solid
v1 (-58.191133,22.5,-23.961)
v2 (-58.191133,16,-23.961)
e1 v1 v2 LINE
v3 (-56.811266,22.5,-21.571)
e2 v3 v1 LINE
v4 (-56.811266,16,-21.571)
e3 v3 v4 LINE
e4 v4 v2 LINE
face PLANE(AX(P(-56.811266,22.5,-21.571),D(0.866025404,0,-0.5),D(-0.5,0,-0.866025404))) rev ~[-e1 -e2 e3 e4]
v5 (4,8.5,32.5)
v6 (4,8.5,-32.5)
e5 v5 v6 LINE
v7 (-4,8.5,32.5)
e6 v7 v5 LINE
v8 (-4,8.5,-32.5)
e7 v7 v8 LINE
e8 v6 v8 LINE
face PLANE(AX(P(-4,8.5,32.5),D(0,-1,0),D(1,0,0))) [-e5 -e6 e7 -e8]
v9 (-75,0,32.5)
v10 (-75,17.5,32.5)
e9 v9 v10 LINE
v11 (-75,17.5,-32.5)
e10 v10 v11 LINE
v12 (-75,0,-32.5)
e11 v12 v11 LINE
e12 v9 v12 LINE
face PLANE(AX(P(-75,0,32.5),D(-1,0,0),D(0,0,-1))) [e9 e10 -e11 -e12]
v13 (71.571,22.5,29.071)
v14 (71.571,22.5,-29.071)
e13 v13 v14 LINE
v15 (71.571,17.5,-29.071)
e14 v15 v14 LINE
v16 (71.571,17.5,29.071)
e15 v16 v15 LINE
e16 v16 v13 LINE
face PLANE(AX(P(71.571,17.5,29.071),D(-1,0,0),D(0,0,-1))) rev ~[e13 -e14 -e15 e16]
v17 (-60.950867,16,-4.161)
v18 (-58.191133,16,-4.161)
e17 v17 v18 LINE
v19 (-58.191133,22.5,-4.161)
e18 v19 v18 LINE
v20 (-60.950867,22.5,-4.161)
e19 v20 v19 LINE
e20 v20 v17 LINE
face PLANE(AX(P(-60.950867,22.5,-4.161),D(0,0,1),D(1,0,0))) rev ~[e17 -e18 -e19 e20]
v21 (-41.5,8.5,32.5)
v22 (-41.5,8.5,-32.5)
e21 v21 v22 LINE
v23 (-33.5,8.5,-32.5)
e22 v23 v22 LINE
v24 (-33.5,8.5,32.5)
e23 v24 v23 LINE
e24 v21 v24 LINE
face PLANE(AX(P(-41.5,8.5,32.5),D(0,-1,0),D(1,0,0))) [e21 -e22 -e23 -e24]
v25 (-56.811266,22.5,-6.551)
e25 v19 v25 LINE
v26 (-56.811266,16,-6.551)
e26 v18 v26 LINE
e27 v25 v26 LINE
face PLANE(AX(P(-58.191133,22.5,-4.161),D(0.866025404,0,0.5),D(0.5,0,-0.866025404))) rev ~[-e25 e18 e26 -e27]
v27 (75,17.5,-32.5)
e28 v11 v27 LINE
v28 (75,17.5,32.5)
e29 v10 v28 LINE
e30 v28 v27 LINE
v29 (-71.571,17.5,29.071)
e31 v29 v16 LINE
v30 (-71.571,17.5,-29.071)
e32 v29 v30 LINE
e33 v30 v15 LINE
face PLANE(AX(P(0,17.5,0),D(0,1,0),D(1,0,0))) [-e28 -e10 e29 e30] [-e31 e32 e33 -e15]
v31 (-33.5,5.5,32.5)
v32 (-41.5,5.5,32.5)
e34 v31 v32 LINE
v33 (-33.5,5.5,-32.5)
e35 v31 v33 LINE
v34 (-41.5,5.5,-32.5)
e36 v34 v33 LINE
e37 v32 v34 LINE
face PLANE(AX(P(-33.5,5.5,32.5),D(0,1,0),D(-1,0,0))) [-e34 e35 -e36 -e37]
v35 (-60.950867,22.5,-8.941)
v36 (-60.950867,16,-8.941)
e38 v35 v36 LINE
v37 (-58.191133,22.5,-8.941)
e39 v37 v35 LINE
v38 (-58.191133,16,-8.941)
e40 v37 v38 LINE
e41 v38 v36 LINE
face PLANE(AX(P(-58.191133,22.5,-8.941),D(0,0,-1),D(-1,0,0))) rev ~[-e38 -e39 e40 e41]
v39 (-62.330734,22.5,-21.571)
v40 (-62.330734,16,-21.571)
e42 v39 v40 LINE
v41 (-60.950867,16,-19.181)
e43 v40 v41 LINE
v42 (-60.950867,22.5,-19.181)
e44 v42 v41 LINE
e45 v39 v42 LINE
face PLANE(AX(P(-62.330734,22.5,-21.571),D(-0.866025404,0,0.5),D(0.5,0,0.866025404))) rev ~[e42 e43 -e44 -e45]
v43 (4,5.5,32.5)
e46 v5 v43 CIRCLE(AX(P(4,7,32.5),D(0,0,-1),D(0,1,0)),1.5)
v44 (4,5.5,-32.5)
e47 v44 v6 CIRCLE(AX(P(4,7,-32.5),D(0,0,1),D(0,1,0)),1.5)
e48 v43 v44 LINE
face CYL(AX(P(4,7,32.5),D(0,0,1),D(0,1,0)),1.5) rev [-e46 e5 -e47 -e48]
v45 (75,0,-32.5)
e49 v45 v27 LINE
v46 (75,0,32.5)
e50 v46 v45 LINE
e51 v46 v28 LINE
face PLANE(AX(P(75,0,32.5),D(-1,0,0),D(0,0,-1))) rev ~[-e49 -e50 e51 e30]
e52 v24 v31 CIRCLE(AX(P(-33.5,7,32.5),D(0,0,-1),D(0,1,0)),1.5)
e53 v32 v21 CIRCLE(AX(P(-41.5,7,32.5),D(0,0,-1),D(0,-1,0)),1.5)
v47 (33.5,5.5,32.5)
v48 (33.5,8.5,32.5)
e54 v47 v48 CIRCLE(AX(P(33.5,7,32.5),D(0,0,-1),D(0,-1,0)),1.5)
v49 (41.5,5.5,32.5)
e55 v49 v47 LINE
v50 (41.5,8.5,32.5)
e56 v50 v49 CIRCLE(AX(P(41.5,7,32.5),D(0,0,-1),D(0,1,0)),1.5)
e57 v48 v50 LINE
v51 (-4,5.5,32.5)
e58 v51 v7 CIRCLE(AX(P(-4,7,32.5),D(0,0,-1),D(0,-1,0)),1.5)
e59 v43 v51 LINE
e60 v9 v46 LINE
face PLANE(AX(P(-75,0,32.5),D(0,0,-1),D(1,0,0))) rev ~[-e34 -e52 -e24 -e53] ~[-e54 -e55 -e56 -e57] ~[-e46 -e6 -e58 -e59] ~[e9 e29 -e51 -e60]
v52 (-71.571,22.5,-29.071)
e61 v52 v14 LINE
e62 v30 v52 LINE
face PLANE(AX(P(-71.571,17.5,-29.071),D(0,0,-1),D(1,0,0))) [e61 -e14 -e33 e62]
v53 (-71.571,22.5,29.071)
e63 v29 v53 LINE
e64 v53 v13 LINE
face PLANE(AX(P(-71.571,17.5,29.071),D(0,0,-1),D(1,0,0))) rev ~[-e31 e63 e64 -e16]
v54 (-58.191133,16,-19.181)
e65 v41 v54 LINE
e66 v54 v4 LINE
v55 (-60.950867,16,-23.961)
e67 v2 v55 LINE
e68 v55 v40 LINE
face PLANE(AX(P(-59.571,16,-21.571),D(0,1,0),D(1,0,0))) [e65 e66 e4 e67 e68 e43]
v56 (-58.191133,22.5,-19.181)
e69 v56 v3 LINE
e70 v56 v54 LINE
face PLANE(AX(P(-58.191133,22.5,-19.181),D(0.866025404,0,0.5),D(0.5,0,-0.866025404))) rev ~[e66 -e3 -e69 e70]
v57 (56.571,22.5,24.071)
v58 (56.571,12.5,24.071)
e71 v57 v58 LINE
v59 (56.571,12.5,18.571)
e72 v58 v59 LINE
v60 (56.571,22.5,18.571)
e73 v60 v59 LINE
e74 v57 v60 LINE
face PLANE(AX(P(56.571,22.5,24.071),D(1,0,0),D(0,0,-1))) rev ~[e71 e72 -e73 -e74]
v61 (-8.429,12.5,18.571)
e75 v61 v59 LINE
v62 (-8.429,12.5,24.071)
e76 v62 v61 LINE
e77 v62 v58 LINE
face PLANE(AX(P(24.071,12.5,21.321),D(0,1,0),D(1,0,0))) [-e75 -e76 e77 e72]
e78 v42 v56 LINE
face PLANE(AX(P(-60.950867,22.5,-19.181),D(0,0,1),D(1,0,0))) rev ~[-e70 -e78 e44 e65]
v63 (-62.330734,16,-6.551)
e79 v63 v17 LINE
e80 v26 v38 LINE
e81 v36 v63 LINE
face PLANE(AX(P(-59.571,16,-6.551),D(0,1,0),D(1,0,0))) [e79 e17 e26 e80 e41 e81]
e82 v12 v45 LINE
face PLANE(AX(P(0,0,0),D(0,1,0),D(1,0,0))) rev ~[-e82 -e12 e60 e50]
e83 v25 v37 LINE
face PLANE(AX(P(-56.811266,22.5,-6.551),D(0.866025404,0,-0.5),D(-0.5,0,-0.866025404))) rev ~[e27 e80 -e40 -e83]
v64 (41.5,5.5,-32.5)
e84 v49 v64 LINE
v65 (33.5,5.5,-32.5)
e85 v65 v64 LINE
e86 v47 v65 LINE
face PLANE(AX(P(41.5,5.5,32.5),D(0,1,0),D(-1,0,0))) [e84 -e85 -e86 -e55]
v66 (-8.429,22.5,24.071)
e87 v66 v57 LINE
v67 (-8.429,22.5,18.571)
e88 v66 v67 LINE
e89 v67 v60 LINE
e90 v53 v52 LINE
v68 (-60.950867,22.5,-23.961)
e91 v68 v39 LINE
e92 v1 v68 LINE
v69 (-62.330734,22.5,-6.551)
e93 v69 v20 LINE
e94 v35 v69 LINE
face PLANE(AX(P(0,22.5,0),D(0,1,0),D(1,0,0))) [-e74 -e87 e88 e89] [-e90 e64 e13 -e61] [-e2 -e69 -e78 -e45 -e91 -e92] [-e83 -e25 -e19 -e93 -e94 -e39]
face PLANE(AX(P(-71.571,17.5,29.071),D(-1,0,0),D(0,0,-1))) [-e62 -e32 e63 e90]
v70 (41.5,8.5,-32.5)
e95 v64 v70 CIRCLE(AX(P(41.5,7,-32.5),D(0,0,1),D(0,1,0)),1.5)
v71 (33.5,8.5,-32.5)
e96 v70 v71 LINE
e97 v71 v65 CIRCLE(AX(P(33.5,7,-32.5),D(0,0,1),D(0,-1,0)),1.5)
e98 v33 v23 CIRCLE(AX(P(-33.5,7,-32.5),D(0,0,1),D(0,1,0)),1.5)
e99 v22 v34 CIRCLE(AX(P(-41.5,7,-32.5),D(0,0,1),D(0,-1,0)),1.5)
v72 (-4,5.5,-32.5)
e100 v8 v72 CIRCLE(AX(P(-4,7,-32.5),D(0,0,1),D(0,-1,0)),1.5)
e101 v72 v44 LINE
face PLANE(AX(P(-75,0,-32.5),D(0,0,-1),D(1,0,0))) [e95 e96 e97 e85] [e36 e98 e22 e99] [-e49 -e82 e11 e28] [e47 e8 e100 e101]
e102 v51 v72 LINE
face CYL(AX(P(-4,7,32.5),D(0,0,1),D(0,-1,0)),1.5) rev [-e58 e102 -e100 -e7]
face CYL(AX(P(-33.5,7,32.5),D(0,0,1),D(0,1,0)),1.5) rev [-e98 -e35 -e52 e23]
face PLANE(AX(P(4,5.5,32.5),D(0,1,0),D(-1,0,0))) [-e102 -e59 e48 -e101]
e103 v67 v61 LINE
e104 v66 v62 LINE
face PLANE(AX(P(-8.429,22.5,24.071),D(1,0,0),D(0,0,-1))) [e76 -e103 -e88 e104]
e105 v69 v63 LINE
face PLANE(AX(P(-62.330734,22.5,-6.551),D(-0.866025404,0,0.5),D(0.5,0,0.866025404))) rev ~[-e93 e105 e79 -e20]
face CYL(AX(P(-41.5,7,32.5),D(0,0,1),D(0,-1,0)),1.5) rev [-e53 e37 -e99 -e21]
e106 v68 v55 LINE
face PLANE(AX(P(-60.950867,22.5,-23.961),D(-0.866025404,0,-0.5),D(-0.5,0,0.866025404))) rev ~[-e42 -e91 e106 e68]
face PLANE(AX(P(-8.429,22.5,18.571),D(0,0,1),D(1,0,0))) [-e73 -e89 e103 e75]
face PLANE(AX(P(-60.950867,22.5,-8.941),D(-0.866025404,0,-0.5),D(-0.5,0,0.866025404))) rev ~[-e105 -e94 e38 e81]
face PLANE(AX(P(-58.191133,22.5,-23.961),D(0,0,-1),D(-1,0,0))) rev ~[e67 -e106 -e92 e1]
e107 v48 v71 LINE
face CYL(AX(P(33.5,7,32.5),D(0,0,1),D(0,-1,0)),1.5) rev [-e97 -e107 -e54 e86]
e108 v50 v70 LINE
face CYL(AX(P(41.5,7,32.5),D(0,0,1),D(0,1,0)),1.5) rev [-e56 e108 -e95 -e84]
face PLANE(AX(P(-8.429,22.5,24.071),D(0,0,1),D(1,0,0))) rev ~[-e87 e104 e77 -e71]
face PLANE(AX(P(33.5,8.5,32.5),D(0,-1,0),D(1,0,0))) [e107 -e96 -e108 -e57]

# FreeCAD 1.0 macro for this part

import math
import FreeCAD as App
import Part
import Sketcher
from FreeCAD import Vector
Q = App.Units.Quantity

doc = App.newDocument("Part")
params = doc.addObject("Spreadsheet::Sheet", "Params")
for row, (alias, value) in enumerate([
    ("sketch1_width", "150 mm"),
    ("sketch1_height", "65 mm"),
    ("pad1_length", "17.5 mm"),
    ("sketch2_radius", "1.5 mm"),
    ("sketch2_width", "8 mm"),
    ("pad2_length", "5 mm"),
    ("pocket2_length", "6.5 mm"),
    ("sketch5_width", "65 mm"),
    ("sketch5_height", "5.5 mm"),
    ("pocket3_length", "10 mm"),
], start=1):
    params.set(f"A{row}", alias)
    params.set(f"B{row}", "=" + value)
    params.setAlias(f"B{row}", alias)

body = doc.addObject("PartDesign::Body", "Body")

sketch1 = body.newObject("Sketcher::SketchObject", "Sketch")
sketch1.AttachmentSupport = (doc.getObject("XZ_Plane"), [""])
sketch1.MapMode = "FlatFace"
sketch1.addGeometry(Part.LineSegment(Vector(-75, -32, 0), Vector(-75, 32, 0)), False)
sketch1.addGeometry(Part.LineSegment(Vector(-75, 32, 0), Vector(75, 32, 0)), False)
sketch1.addGeometry(Part.LineSegment(Vector(75, 32, 0), Vector(75, -32, 0)), False)
sketch1.addGeometry(Part.LineSegment(Vector(75, -32, 0), Vector(-75, -32, 0)), False)
sketch1.addConstraint(Sketcher.Constraint("Coincident", 0, 2, 1, 1))
sketch1.addConstraint(Sketcher.Constraint("Coincident", 1, 2, 2, 1))
sketch1.addConstraint(Sketcher.Constraint("Coincident", 2, 2, 3, 1))
sketch1.addConstraint(Sketcher.Constraint("Coincident", 3, 2, 0, 1))
sketch1.addConstraint(Sketcher.Constraint("Vertical", 0))
sketch1.addConstraint(Sketcher.Constraint("Horizontal", 1))
sketch1.addConstraint(Sketcher.Constraint("Vertical", 2))
sketch1.addConstraint(Sketcher.Constraint("Horizontal", 3))
sketch1.addConstraint(Sketcher.Constraint("Symmetric", 0, 2, 2, 2, -1, 1))
sketch1.addConstraint(Sketcher.Constraint("DistanceX", 1, 1, 1, 2, Q("150 mm")))
sketch1.addConstraint(Sketcher.Constraint("DistanceY", 0, 1, 0, 2, Q("65 mm")))
sketch1.setExpression("Constraints[9]", "Params.sketch1_width")
sketch1.setExpression("Constraints[10]", "Params.sketch1_height")
pad1 = body.newObject("PartDesign::Pad", "Pad")
pad1.Profile = sketch1
pad1.setExpression("Length", "Params.pad1_length")
pad1.Reversed = True

sketch2 = body.newObject("Sketcher::SketchObject", "Sketch001")
sketch2.AttachmentSupport = (doc.getObject("XY_Plane"), [""])
sketch2.MapMode = "FlatFace"
sketch2.AttachmentOffset = App.Placement(Vector(0, 0, 32.5), App.Rotation())
sketch2.addGeometry(Part.LineSegment(Vector(4, 8.5, 0), Vector(-4, 8.5, 0)), False)
sketch2.addGeometry(Part.ArcOfCircle(Part.Circle(Vector(-4, 7, 0), Vector(0, 0, 1), 1.5), math.radians(90), math.radians(270)), False)
sketch2.addGeometry(Part.LineSegment(Vector(-4, 5.5, 0), Vector(4, 5.5, 0)), False)
sketch2.addGeometry(Part.ArcOfCircle(Part.Circle(Vector(4, 7, 0), Vector(0, 0, 1), 1.5), math.radians(-90), math.radians(90)), False)
sketch2.addGeometry(Part.LineSegment(Vector(-33.5, 8.5, 0), Vector(-41.5, 8.5, 0)), False)
sketch2.addGeometry(Part.ArcOfCircle(Part.Circle(Vector(-41.5, 7, 0), Vector(0, 0, 1), 1.5), math.radians(90), math.radians(270)), False)
sketch2.addGeometry(Part.LineSegment(Vector(-41.5, 5.5, 0), Vector(-33.5, 5.5, 0)), False)
sketch2.addGeometry(Part.ArcOfCircle(Part.Circle(Vector(-33.5, 7, 0), Vector(0, 0, 1), 1.5), math.radians(-90), math.radians(90)), False)
sketch2.addGeometry(Part.LineSegment(Vector(41.5, 8.5, 0), Vector(33.5, 8.5, 0)), False)
sketch2.addGeometry(Part.ArcOfCircle(Part.Circle(Vector(33.5, 7, 0), Vector(0, 0, 1), 1.5), math.radians(90), math.radians(270)), False)
sketch2.addGeometry(Part.LineSegment(Vector(33.5, 5.5, 0), Vector(41.5, 5.5, 0)), False)
sketch2.addGeometry(Part.ArcOfCircle(Part.Circle(Vector(41.5, 7, 0), Vector(0, 0, 1), 1.5), math.radians(-90), math.radians(90)), False)
sketch2.addConstraint(Sketcher.Constraint("Tangent", 0, 2, 1, 1))
sketch2.addConstraint(Sketcher.Constraint("Tangent", 1, 2, 2, 1))
sketch2.addConstraint(Sketcher.Constraint("Tangent", 2, 2, 3, 1))
sketch2.addConstraint(Sketcher.Constraint("Tangent", 3, 2, 0, 1))
sketch2.addConstraint(Sketcher.Constraint("Tangent", 4, 2, 5, 1))
sketch2.addConstraint(Sketcher.Constraint("Tangent", 5, 2, 6, 1))
sketch2.addConstraint(Sketcher.Constraint("Tangent", 6, 2, 7, 1))
sketch2.addConstraint(Sketcher.Constraint("Tangent", 7, 2, 4, 1))
sketch2.addConstraint(Sketcher.Constraint("Tangent", 8, 2, 9, 1))
sketch2.addConstraint(Sketcher.Constraint("Tangent", 9, 2, 10, 1))
sketch2.addConstraint(Sketcher.Constraint("Tangent", 10, 2, 11, 1))
sketch2.addConstraint(Sketcher.Constraint("Tangent", 11, 2, 8, 1))
sketch2.addConstraint(Sketcher.Constraint("Horizontal", 0))
sketch2.addConstraint(Sketcher.Constraint("Horizontal", 2))
sketch2.addConstraint(Sketcher.Constraint("Horizontal", 4))
sketch2.addConstraint(Sketcher.Constraint("Horizontal", 6))
sketch2.addConstraint(Sketcher.Constraint("Horizontal", 8))
sketch2.addConstraint(Sketcher.Constraint("Horizontal", 10))
sketch2.addConstraint(Sketcher.Constraint("Equal", 3, 5))
sketch2.addConstraint(Sketcher.Constraint("Equal", 7, 9))
sketch2.addConstraint(Sketcher.Constraint("Symmetric", 7, 3, 9, 3, -2))
sketch2.addConstraint(Sketcher.Constraint("Horizontal", 3, 3, 5, 3))
sketch2.addConstraint(Sketcher.Constraint("Equal", 2, 4))
sketch2.addConstraint(Sketcher.Constraint("Equal", 6, 8))
sketch2.addConstraint(Sketcher.Constraint("Radius", 1, Q("1.5 mm")))
sketch2.addConstraint(Sketcher.Constraint("DistanceX", 0, 2, 0, 1, Q("8 mm")))
sketch2.addConstraint(Sketcher.Constraint("DistanceX", 1, 3, -1, 1, Q("4 mm")))
sketch2.addConstraint(Sketcher.Constraint("DistanceY", -1, 1, 1, 3, Q("7 mm")))
sketch2.addConstraint(Sketcher.Constraint("DistanceX", 7, 3, 9, 3, Q("67 mm")))
sketch2.setExpression("Constraints[24]", "Params.sketch2_radius")
sketch2.setExpression("Constraints[25]", "Params.sketch2_width")
pocket1 = body.newObject("PartDesign::Pocket", "Pocket")
pocket1.Profile = sketch2
pocket1.Type = "ThroughAll"

sketch3 = body.newObject("Sketcher::SketchObject", "Sketch002")
sketch3.AttachmentSupport = (doc.getObject("XZ_Plane"), [""])
sketch3.MapMode = "FlatFace"
sketch3.AttachmentOffset = App.Placement(Vector(0, 0, -17.5), App.Rotation())
sketch3.addGeometry(Part.LineSegment(Vector(-72, -29, 0), Vector(-72, 29, 0)), False)
sketch3.addGeometry(Part.LineSegment(Vector(-72, 29, 0), Vector(72, 29, 0)), False)
sketch3.addGeometry(Part.LineSegment(Vector(72, 29, 0), Vector(72, -29, 0)), False)
sketch3.addGeometry(Part.LineSegment(Vector(72, -29, 0), Vector(-72, -29, 0)), False)
sketch3.addConstraint(Sketcher.Constraint("Coincident", 0, 2, 1, 1))
sketch3.addConstraint(Sketcher.Constraint("Coincident", 1, 2, 2, 1))
sketch3.addConstraint(Sketcher.Constraint("Coincident", 2, 2, 3, 1))
sketch3.addConstraint(Sketcher.Constraint("Coincident", 3, 2, 0, 1))
sketch3.addConstraint(Sketcher.Constraint("Vertical", 0))
sketch3.addConstraint(Sketcher.Constraint("Horizontal", 1))
sketch3.addConstraint(Sketcher.Constraint("Vertical", 2))
sketch3.addConstraint(Sketcher.Constraint("Horizontal", 3))
sketch3.addConstraint(Sketcher.Constraint("Symmetric", 0, 2, 2, 2, -1, 1))
sketch3.addConstraint(Sketcher.Constraint("DistanceX", 1, 1, 1, 2, Q("143.142 mm")))
sketch3.addConstraint(Sketcher.Constraint("DistanceY", 0, 1, 0, 2, Q("58.142 mm")))
pad2 = body.newObject("PartDesign::Pad", "Pad001")
pad2.Profile = sketch3
pad2.setExpression("Length", "Params.pad2_length")
pad2.Reversed = True

sketch4 = body.newObject("Sketcher::SketchObject", "Sketch003")
sketch4.AttachmentSupport = (doc.getObject("XZ_Plane"), [""])
sketch4.MapMode = "FlatFace"
sketch4.AttachmentOffset = App.Placement(Vector(0, 0, -22.5), App.Rotation())
sketch4.addGeometry(Part.LineSegment(Vector(-61, -24, 0), Vector(-62.3, -21.6, 0)), False)
sketch4.addGeometry(Part.LineSegment(Vector(-62.3, -21.6, 0), Vector(-61, -19.2, 0)), False)
sketch4.addGeometry(Part.LineSegment(Vector(-61, -19.2, 0), Vector(-58.2, -19.2, 0)), False)
sketch4.addGeometry(Part.LineSegment(Vector(-58.2, -19.2, 0), Vector(-56.8, -21.6, 0)), False)
sketch4.addGeometry(Part.LineSegment(Vector(-56.8, -21.6, 0), Vector(-58.2, -24, 0)), False)
sketch4.addGeometry(Part.LineSegment(Vector(-58.2, -24, 0), Vector(-61, -24, 0)), False)
sketch4.addGeometry(Part.LineSegment(Vector(-61, -8.9, 0), Vector(-62.3, -6.6, 0)), False)
sketch4.addGeometry(Part.LineSegment(Vector(-62.3, -6.6, 0), Vector(-61, -4.2, 0)), False)
sketch4.addGeometry(Part.LineSegment(Vector(-61, -4.2, 0), Vector(-58.2, -4.2, 0)), False)
sketch4.addGeometry(Part.LineSegment(Vector(-58.2, -4.2, 0), Vector(-56.8, -6.6, 0)), False)
sketch4.addGeometry(Part.LineSegment(Vector(-56.8, -6.6, 0), Vector(-58.2, -8.9, 0)), False)
sketch4.addGeometry(Part.LineSegment(Vector(-58.2, -8.9, 0), Vector(-61, -8.9, 0)), False)
sketch4.addConstraint(Sketcher.Constraint("Coincident", 0, 2, 1, 1))
sketch4.addConstraint(Sketcher.Constraint("Coincident", 1, 2, 2, 1))
sketch4.addConstraint(Sketcher.Constraint("Coincident", 2, 2, 3, 1))
sketch4.addConstraint(Sketcher.Constraint("Coincident", 3, 2, 4, 1))
sketch4.addConstraint(Sketcher.Constraint("Coincident", 4, 2, 5, 1))
sketch4.addConstraint(Sketcher.Constraint("Coincident", 5, 2, 0, 1))
sketch4.addConstraint(Sketcher.Constraint("Coincident", 6, 2, 7, 1))
sketch4.addConstraint(Sketcher.Constraint("Coincident", 7, 2, 8, 1))
sketch4.addConstraint(Sketcher.Constraint("Coincident", 8, 2, 9, 1))
sketch4.addConstraint(Sketcher.Constraint("Coincident", 9, 2, 10, 1))
sketch4.addConstraint(Sketcher.Constraint("Coincident", 10, 2, 11, 1))
sketch4.addConstraint(Sketcher.Constraint("Coincident", 11, 2, 6, 1))
sketch4.addConstraint(Sketcher.Constraint("Horizontal", 2))
sketch4.addConstraint(Sketcher.Constraint("Horizontal", 5))
sketch4.addConstraint(Sketcher.Constraint("Horizontal", 8))
sketch4.addConstraint(Sketcher.Constraint("Horizontal", 11))
sketch4.addConstraint(Sketcher.Constraint("Parallel", 0, 3))
sketch4.addConstraint(Sketcher.Constraint("Parallel", 1, 4))
sketch4.addConstraint(Sketcher.Constraint("Parallel", 3, 6))
sketch4.addConstraint(Sketcher.Constraint("Parallel", 4, 7))
sketch4.addConstraint(Sketcher.Constraint("Parallel", 6, 9))
sketch4.addConstraint(Sketcher.Constraint("Parallel", 7, 10))
sketch4.addConstraint(Sketcher.Constraint("Horizontal", 0, 2, 3, 2))
sketch4.addConstraint(Sketcher.Constraint("Horizontal", 6, 2, 9, 2))
sketch4.addConstraint(Sketcher.Constraint("Vertical", 2, 2, 4, 2))
sketch4.addConstraint(Sketcher.Constraint("Vertical", 1, 2, 5, 2))
sketch4.addConstraint(Sketcher.Constraint("Vertical", 0, 2, 6, 2))
sketch4.addConstraint(Sketcher.Constraint("Vertical", 5, 2, 7, 2))
sketch4.addConstraint(Sketcher.Constraint("Vertical", 4, 2, 8, 2))
sketch4.addConstraint(Sketcher.Constraint("Vertical", 8, 2, 10, 2))
sketch4.addConstraint(Sketcher.Constraint("Angle", 0, Q("120 deg")))
sketch4.addConstraint(Sketcher.Constraint("DistanceY", 0, 2, 1, 2, Q("2.39 mm")))
sketch4.addConstraint(Sketcher.Constraint("DistanceY", 1, 2, 6, 2, Q("12.63 mm")))
sketch4.addConstraint(Sketcher.Constraint("DistanceY", 0, 2, -1, 1, Q("21.571 mm")))
sketch4.addConstraint(Sketcher.Constraint("DistanceX", 0, 2, 2, 2, Q("4.139601 mm")))
sketch4.addConstraint(Sketcher.Constraint("DistanceX", 0, 2, -1, 1, Q("62.330734 mm")))
pocket2 = body.newObject("PartDesign::Pocket", "Pocket001")
pocket2.Profile = sketch4
pocket2.setExpression("Length", "Params.pocket2_length")
pocket2.Reversed = True

sketch5 = body.newObject("Sketcher::SketchObject", "Sketch004")
sketch5.AttachmentSupport = (doc.getObject("XZ_Plane"), [""])
sketch5.MapMode = "FlatFace"
sketch5.AttachmentOffset = App.Placement(Vector(0, 0, -22.5), App.Rotation())
sketch5.addGeometry(Part.LineSegment(Vector(-8, 19, 0), Vector(-8, 24, 0)), False)
sketch5.addGeometry(Part.LineSegment(Vector(-8, 24, 0), Vector(57, 24, 0)), False)
sketch5.addGeometry(Part.LineSegment(Vector(57, 24, 0), Vector(57, 19, 0)), False)
sketch5.addGeometry(Part.LineSegment(Vector(57, 19, 0), Vector(-8, 19, 0)), False)
sketch5.addConstraint(Sketcher.Constraint("Coincident", 0, 2, 1, 1))
sketch5.addConstraint(Sketcher.Constraint("Coincident", 1, 2, 2, 1))
sketch5.addConstraint(Sketcher.Constraint("Coincident", 2, 2, 3, 1))
sketch5.addConstraint(Sketcher.Constraint("Coincident", 3, 2, 0, 1))
sketch5.addConstraint(Sketcher.Constraint("Vertical", 0))
sketch5.addConstraint(Sketcher.Constraint("Horizontal", 1))
sketch5.addConstraint(Sketcher.Constraint("Vertical", 2))
sketch5.addConstraint(Sketcher.Constraint("Horizontal", 3))
sketch5.addConstraint(Sketcher.Constraint("DistanceX", 1, 1, 1, 2, Q("65 mm")))
sketch5.addConstraint(Sketcher.Constraint("DistanceY", 0, 1, 0, 2, Q("5.5 mm")))
sketch5.addConstraint(Sketcher.Constraint("DistanceX", 0, 2, -1, 1, Q("8.429 mm")))
sketch5.addConstraint(Sketcher.Constraint("DistanceY", -1, 1, 0, 2, Q("24.071 mm")))
sketch5.setExpression("Constraints[8]", "Params.sketch5_width")
sketch5.setExpression("Constraints[9]", "Params.sketch5_height")
pocket3 = body.newObject("PartDesign::Pocket", "Pocket002")
pocket3.Profile = sketch5
pocket3.setExpression("Length", "Params.pocket3_length")
pocket3.Reversed = True

doc.recompute()
